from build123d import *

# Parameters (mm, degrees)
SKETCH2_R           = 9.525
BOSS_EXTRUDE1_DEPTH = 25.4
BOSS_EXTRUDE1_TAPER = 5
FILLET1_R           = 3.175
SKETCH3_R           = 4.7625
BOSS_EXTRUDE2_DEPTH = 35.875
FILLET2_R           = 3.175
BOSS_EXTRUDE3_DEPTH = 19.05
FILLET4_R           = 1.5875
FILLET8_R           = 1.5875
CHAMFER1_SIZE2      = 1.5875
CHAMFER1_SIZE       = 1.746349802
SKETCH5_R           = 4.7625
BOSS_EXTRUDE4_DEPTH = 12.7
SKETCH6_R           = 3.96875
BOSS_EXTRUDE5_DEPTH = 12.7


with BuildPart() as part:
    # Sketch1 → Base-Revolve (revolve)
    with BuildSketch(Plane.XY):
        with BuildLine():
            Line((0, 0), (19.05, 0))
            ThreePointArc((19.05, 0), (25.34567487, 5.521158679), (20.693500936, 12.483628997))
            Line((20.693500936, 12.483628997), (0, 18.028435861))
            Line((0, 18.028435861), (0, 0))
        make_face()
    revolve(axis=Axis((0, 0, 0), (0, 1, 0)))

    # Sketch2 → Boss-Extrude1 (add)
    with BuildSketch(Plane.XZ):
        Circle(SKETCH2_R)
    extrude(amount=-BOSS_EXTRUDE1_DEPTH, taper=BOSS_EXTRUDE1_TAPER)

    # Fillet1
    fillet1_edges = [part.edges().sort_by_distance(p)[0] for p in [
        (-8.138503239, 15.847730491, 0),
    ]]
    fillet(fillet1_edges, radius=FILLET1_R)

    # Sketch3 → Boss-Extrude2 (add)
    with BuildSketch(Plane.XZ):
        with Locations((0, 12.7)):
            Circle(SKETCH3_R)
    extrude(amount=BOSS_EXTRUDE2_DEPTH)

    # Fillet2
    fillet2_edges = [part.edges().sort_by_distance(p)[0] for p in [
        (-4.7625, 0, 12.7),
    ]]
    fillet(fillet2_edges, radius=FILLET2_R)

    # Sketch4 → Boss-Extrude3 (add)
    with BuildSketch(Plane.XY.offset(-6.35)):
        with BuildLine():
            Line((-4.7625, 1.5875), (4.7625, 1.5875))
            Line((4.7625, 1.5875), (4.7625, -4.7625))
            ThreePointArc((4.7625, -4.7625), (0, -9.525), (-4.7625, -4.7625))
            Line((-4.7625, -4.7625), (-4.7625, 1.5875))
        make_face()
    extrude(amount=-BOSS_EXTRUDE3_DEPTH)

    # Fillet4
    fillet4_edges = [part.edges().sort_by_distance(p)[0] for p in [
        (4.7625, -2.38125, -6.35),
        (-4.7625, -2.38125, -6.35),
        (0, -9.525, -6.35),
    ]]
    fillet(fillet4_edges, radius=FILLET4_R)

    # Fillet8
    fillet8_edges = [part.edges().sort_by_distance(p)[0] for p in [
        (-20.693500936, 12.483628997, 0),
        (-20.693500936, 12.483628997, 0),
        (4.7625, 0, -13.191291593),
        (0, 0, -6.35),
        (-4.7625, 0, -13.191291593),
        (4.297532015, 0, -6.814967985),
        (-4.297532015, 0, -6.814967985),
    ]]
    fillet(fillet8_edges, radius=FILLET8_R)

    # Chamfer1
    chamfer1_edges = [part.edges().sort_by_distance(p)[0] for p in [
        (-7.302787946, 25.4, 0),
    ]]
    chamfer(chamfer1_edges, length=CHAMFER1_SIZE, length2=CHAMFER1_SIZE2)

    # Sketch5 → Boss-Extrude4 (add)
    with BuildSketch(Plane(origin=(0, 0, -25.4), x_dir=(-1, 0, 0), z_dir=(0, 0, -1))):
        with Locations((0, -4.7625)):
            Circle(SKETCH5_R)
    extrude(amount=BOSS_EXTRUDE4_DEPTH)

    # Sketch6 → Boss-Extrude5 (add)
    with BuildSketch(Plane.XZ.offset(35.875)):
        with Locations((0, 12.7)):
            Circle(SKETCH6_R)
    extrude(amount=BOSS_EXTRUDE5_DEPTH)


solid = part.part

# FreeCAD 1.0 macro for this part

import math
import FreeCAD as App
import Part
import Sketcher

V = App.Vector
Q = App.Units.Quantity


def edges_at(feature, points):
    """Names of the edges that pass closest to the given points."""
    edges = feature.Shape.Edges
    near = lambda p: min(range(len(edges)), key=lambda i: edges[i].distToShape(Part.Vertex(*p))[0])
    return sorted({f"Edge{near(p) + 1}" for p in points})

doc = App.newDocument("Part")
body = doc.addObject("PartDesign::Body", "Body")

sketch1 = doc.addObject("Sketcher::SketchObject", "Sketch")
body.addObject(sketch1)
sketch1.AttachmentSupport = (doc.XY_Plane, [""])
sketch1.MapMode = "FlatFace"
sketch1.addGeometry(Part.LineSegment(V(0, 0, 0), V(19, 0, 0)), False)
sketch1.addGeometry(Part.ArcOfCircle(Part.Circle(V(19, 6, 0), V(0, 0, 1), 6), math.radians(-90), math.radians(75)), False)
sketch1.addGeometry(Part.LineSegment(V(21, 12, 0), V(0, 18, 0)), False)
sketch1.addGeometry(Part.LineSegment(V(0, 18, 0), V(0, 0, 0)), False)
sketch1.addConstraint(Sketcher.Constraint("Tangent", 0, 2, 1, 1))
sketch1.addConstraint(Sketcher.Constraint("Tangent", 1, 2, 2, 1))
sketch1.addConstraint(Sketcher.Constraint("Coincident", 2, 2, 3, 1))
sketch1.addConstraint(Sketcher.Constraint("Coincident", 3, 2, 0, 1))
sketch1.addConstraint(Sketcher.Constraint("Horizontal", 0))
sketch1.addConstraint(Sketcher.Constraint("Vertical", 3))
sketch1.addConstraint(Sketcher.Constraint("Coincident", 3, 2, -1, 1))
sketch1.addConstraint(Sketcher.Constraint("Radius", 1, Q("0.25 in")))
sketch1.addConstraint(Sketcher.Constraint("Angle", 2, Q("165 deg")))
sketch1.addConstraint(Sketcher.Constraint("DistanceX", 0, 1, 0, 2, Q("0.75 in")))
revolution = doc.addObject("PartDesign::Revolution", "Revolution")
body.addObject(revolution)
revolution.Profile = sketch1
revolution.ReferenceAxis = (sketch1, ["V_Axis"])
revolution.Angle = 360

sketch2 = doc.addObject("Sketcher::SketchObject", "Sketch001")
body.addObject(sketch2)
sketch2.AttachmentSupport = (doc.XZ_Plane, [""])
sketch2.MapMode = "FlatFace"
sketch2.addGeometry(Part.Circle(V(0, 0, 0), V(0, 0, 1), 10), False)
sketch2.addConstraint(Sketcher.Constraint("Coincident", 0, 3, -1, 1))
sketch2.addConstraint(Sketcher.Constraint("Diameter", 0, Q("0.75 in")))
pad1 = doc.addObject("PartDesign::Pad", "Pad")
body.addObject(pad1)
pad1.Profile = sketch2
pad1.Length = Q("1 in")
pad1.Reversed = True
pad1.TaperAngle = -5
doc.recompute()

fillet = doc.addObject("PartDesign::Fillet", "Fillet")
body.addObject(fillet)
fillet.Base = (pad1, edges_at(pad1, [(-8.139, 15.848, 0)]))
fillet.Radius = Q("0.125 in")

sketch3 = doc.addObject("Sketcher::SketchObject", "Sketch002")
body.addObject(sketch3)
sketch3.AttachmentSupport = (doc.XZ_Plane, [""])
sketch3.MapMode = "FlatFace"
sketch3.addGeometry(Part.Circle(V(0, 12.7, 0), V(0, 0, 1), 4.8), False)
sketch3.addConstraint(Sketcher.Constraint("PointOnObject", 0, 3, -2))
sketch3.addConstraint(Sketcher.Constraint("Diameter", 0, Q("0.375 in")))
sketch3.addConstraint(Sketcher.Constraint("DistanceY", -1, 1, 0, 3, Q("0.5 in")))
pad2 = doc.addObject("PartDesign::Pad", "Pad001")
body.addObject(pad2)
pad2.Profile = sketch3
pad2.Length = 35.875
doc.recompute()

fillet2 = doc.addObject("PartDesign::Fillet", "Fillet001")
body.addObject(fillet2)
fillet2.Base = (pad2, edges_at(pad2, [(-4.763, 0, 12.7)]))
fillet2.Radius = Q("0.125 in")

sketch4 = doc.addObject("Sketcher::SketchObject", "Sketch003")
body.addObject(sketch4)
sketch4.AttachmentSupport = (doc.XY_Plane, [""])
sketch4.MapMode = "FlatFace"
sketch4.AttachmentOffset = App.Placement(V(0, 0, -0.25 * 25.4), App.Rotation())
sketch4.addGeometry(Part.LineSegment(V(4.8, 1.6, 0), V(-4.8, 1.6, 0)), False)
sketch4.addGeometry(Part.LineSegment(V(-4.8, 1.6, 0), V(-4.8, -4.8, 0)), False)
sketch4.addGeometry(Part.ArcOfCircle(Part.Circle(V(0, -4.8, 0), V(0, 0, 1), 4.8), math.radians(180), math.radians(360)), False)
sketch4.addGeometry(Part.LineSegment(V(4.8, -4.8, 0), V(4.8, 1.6, 0)), False)
sketch4.addConstraint(Sketcher.Constraint("Coincident", 0, 2, 1, 1))
sketch4.addConstraint(Sketcher.Constraint("Tangent", 1, 2, 2, 1))
sketch4.addConstraint(Sketcher.Constraint("Tangent", 2, 2, 3, 1))
sketch4.addConstraint(Sketcher.Constraint("Coincident", 3, 2, 0, 1))
sketch4.addConstraint(Sketcher.Constraint("Horizontal", 0))
sketch4.addConstraint(Sketcher.Constraint("Vertical", 1))
sketch4.addConstraint(Sketcher.Constraint("Vertical", 3))
sketch4.addConstraint(Sketcher.Constraint("PointOnObject", 2, 3, -2))
sketch4.addConstraint(Sketcher.Constraint("Radius", 2, Q("0.1875 in")))
sketch4.addConstraint(Sketcher.Constraint("DistanceY", 1, 2, 1, 1, Q("0.25 in")))
sketch4.addConstraint(Sketcher.Constraint("DistanceY", 2, 3, -1, 1, Q("0.1875 in")))
pad3 = doc.addObject("PartDesign::Pad", "Pad002")
body.addObject(pad3)
pad3.Profile = sketch4
pad3.Length = Q("0.75 in")
pad3.Reversed = True
doc.recompute()

fillet3 = doc.addObject("PartDesign::Fillet", "Fillet002")
body.addObject(fillet3)
fillet3.Base = (pad3, edges_at(pad3, [(4.763, -2.381, -6.35), (-4.763, -2.381, -6.35), (0, -9.525, -6.35)]))
fillet3.Radius = Q("0.0625 in")
doc.recompute()

fillet4 = doc.addObject("PartDesign::Fillet", "Fillet003")
body.addObject(fillet4)
fillet4.Base = (fillet3, edges_at(fillet3, [
    (-20.694, 12.484, 0),
    (-20.694, 12.484, 0),
    (4.763, 0, -13.191),
    (0, 0, -6.35),
    (-4.763, 0, -13.191),
    (4.298, 0, -6.815),
    (-4.298, 0, -6.815),
]))
fillet4.Radius = Q("0.0625 in")
doc.recompute()

chamfer = doc.addObject("PartDesign::Chamfer", "Chamfer")
body.addObject(chamfer)
chamfer.Base = (fillet4, edges_at(fillet4, [(-7.303, 25.4, 0)]))
chamfer.ChamferType = "Two distances"
chamfer.Size = 1.74635
chamfer.Size2 = Q("0.0625 in")

sketch5 = doc.addObject("Sketcher::SketchObject", "Sketch004")
body.addObject(sketch5)
sketch5.AttachmentSupport = (doc.XY_Plane, [""])
sketch5.MapMode = "FlatFace"
sketch5.AttachmentOffset = App.Placement(V(0, 0, -1 * 25.4), App.Rotation())
sketch5.addGeometry(Part.Circle(V(0, -4.8, 0), V(0, 0, 1), 4.8), False)
sketch5.addConstraint(Sketcher.Constraint("PointOnObject", 0, 3, -2))
sketch5.addConstraint(Sketcher.Constraint("Diameter", 0, Q("0.375 in")))
sketch5.addConstraint(Sketcher.Constraint("DistanceY", 0, 3, -1, 1, Q("0.1875 in")))
pad4 = doc.addObject("PartDesign::Pad", "Pad003")
body.addObject(pad4)
pad4.Profile = sketch5
pad4.Length = Q("0.5 in")
pad4.Reversed = True

sketch6 = doc.addObject("Sketcher::SketchObject", "Sketch005")
body.addObject(sketch6)
sketch6.AttachmentSupport = (doc.XZ_Plane, [""])
sketch6.MapMode = "FlatFace"
sketch6.AttachmentOffset = App.Placement(V(0, 0, 35.875), App.Rotation())
sketch6.addGeometry(Part.Circle(V(0, 12.7, 0), V(0, 0, 1), 4), False)
sketch6.addConstraint(Sketcher.Constraint("PointOnObject", 0, 3, -2))
sketch6.addConstraint(Sketcher.Constraint("Diameter", 0, Q("0.3125 in")))
sketch6.addConstraint(Sketcher.Constraint("DistanceY", -1, 1, 0, 3, Q("0.5 in")))
pad5 = doc.addObject("PartDesign::Pad", "Pad004")
body.addObject(pad5)
pad5.Profile = sketch6
pad5.Length = Q("0.5 in")

doc.recompute()
